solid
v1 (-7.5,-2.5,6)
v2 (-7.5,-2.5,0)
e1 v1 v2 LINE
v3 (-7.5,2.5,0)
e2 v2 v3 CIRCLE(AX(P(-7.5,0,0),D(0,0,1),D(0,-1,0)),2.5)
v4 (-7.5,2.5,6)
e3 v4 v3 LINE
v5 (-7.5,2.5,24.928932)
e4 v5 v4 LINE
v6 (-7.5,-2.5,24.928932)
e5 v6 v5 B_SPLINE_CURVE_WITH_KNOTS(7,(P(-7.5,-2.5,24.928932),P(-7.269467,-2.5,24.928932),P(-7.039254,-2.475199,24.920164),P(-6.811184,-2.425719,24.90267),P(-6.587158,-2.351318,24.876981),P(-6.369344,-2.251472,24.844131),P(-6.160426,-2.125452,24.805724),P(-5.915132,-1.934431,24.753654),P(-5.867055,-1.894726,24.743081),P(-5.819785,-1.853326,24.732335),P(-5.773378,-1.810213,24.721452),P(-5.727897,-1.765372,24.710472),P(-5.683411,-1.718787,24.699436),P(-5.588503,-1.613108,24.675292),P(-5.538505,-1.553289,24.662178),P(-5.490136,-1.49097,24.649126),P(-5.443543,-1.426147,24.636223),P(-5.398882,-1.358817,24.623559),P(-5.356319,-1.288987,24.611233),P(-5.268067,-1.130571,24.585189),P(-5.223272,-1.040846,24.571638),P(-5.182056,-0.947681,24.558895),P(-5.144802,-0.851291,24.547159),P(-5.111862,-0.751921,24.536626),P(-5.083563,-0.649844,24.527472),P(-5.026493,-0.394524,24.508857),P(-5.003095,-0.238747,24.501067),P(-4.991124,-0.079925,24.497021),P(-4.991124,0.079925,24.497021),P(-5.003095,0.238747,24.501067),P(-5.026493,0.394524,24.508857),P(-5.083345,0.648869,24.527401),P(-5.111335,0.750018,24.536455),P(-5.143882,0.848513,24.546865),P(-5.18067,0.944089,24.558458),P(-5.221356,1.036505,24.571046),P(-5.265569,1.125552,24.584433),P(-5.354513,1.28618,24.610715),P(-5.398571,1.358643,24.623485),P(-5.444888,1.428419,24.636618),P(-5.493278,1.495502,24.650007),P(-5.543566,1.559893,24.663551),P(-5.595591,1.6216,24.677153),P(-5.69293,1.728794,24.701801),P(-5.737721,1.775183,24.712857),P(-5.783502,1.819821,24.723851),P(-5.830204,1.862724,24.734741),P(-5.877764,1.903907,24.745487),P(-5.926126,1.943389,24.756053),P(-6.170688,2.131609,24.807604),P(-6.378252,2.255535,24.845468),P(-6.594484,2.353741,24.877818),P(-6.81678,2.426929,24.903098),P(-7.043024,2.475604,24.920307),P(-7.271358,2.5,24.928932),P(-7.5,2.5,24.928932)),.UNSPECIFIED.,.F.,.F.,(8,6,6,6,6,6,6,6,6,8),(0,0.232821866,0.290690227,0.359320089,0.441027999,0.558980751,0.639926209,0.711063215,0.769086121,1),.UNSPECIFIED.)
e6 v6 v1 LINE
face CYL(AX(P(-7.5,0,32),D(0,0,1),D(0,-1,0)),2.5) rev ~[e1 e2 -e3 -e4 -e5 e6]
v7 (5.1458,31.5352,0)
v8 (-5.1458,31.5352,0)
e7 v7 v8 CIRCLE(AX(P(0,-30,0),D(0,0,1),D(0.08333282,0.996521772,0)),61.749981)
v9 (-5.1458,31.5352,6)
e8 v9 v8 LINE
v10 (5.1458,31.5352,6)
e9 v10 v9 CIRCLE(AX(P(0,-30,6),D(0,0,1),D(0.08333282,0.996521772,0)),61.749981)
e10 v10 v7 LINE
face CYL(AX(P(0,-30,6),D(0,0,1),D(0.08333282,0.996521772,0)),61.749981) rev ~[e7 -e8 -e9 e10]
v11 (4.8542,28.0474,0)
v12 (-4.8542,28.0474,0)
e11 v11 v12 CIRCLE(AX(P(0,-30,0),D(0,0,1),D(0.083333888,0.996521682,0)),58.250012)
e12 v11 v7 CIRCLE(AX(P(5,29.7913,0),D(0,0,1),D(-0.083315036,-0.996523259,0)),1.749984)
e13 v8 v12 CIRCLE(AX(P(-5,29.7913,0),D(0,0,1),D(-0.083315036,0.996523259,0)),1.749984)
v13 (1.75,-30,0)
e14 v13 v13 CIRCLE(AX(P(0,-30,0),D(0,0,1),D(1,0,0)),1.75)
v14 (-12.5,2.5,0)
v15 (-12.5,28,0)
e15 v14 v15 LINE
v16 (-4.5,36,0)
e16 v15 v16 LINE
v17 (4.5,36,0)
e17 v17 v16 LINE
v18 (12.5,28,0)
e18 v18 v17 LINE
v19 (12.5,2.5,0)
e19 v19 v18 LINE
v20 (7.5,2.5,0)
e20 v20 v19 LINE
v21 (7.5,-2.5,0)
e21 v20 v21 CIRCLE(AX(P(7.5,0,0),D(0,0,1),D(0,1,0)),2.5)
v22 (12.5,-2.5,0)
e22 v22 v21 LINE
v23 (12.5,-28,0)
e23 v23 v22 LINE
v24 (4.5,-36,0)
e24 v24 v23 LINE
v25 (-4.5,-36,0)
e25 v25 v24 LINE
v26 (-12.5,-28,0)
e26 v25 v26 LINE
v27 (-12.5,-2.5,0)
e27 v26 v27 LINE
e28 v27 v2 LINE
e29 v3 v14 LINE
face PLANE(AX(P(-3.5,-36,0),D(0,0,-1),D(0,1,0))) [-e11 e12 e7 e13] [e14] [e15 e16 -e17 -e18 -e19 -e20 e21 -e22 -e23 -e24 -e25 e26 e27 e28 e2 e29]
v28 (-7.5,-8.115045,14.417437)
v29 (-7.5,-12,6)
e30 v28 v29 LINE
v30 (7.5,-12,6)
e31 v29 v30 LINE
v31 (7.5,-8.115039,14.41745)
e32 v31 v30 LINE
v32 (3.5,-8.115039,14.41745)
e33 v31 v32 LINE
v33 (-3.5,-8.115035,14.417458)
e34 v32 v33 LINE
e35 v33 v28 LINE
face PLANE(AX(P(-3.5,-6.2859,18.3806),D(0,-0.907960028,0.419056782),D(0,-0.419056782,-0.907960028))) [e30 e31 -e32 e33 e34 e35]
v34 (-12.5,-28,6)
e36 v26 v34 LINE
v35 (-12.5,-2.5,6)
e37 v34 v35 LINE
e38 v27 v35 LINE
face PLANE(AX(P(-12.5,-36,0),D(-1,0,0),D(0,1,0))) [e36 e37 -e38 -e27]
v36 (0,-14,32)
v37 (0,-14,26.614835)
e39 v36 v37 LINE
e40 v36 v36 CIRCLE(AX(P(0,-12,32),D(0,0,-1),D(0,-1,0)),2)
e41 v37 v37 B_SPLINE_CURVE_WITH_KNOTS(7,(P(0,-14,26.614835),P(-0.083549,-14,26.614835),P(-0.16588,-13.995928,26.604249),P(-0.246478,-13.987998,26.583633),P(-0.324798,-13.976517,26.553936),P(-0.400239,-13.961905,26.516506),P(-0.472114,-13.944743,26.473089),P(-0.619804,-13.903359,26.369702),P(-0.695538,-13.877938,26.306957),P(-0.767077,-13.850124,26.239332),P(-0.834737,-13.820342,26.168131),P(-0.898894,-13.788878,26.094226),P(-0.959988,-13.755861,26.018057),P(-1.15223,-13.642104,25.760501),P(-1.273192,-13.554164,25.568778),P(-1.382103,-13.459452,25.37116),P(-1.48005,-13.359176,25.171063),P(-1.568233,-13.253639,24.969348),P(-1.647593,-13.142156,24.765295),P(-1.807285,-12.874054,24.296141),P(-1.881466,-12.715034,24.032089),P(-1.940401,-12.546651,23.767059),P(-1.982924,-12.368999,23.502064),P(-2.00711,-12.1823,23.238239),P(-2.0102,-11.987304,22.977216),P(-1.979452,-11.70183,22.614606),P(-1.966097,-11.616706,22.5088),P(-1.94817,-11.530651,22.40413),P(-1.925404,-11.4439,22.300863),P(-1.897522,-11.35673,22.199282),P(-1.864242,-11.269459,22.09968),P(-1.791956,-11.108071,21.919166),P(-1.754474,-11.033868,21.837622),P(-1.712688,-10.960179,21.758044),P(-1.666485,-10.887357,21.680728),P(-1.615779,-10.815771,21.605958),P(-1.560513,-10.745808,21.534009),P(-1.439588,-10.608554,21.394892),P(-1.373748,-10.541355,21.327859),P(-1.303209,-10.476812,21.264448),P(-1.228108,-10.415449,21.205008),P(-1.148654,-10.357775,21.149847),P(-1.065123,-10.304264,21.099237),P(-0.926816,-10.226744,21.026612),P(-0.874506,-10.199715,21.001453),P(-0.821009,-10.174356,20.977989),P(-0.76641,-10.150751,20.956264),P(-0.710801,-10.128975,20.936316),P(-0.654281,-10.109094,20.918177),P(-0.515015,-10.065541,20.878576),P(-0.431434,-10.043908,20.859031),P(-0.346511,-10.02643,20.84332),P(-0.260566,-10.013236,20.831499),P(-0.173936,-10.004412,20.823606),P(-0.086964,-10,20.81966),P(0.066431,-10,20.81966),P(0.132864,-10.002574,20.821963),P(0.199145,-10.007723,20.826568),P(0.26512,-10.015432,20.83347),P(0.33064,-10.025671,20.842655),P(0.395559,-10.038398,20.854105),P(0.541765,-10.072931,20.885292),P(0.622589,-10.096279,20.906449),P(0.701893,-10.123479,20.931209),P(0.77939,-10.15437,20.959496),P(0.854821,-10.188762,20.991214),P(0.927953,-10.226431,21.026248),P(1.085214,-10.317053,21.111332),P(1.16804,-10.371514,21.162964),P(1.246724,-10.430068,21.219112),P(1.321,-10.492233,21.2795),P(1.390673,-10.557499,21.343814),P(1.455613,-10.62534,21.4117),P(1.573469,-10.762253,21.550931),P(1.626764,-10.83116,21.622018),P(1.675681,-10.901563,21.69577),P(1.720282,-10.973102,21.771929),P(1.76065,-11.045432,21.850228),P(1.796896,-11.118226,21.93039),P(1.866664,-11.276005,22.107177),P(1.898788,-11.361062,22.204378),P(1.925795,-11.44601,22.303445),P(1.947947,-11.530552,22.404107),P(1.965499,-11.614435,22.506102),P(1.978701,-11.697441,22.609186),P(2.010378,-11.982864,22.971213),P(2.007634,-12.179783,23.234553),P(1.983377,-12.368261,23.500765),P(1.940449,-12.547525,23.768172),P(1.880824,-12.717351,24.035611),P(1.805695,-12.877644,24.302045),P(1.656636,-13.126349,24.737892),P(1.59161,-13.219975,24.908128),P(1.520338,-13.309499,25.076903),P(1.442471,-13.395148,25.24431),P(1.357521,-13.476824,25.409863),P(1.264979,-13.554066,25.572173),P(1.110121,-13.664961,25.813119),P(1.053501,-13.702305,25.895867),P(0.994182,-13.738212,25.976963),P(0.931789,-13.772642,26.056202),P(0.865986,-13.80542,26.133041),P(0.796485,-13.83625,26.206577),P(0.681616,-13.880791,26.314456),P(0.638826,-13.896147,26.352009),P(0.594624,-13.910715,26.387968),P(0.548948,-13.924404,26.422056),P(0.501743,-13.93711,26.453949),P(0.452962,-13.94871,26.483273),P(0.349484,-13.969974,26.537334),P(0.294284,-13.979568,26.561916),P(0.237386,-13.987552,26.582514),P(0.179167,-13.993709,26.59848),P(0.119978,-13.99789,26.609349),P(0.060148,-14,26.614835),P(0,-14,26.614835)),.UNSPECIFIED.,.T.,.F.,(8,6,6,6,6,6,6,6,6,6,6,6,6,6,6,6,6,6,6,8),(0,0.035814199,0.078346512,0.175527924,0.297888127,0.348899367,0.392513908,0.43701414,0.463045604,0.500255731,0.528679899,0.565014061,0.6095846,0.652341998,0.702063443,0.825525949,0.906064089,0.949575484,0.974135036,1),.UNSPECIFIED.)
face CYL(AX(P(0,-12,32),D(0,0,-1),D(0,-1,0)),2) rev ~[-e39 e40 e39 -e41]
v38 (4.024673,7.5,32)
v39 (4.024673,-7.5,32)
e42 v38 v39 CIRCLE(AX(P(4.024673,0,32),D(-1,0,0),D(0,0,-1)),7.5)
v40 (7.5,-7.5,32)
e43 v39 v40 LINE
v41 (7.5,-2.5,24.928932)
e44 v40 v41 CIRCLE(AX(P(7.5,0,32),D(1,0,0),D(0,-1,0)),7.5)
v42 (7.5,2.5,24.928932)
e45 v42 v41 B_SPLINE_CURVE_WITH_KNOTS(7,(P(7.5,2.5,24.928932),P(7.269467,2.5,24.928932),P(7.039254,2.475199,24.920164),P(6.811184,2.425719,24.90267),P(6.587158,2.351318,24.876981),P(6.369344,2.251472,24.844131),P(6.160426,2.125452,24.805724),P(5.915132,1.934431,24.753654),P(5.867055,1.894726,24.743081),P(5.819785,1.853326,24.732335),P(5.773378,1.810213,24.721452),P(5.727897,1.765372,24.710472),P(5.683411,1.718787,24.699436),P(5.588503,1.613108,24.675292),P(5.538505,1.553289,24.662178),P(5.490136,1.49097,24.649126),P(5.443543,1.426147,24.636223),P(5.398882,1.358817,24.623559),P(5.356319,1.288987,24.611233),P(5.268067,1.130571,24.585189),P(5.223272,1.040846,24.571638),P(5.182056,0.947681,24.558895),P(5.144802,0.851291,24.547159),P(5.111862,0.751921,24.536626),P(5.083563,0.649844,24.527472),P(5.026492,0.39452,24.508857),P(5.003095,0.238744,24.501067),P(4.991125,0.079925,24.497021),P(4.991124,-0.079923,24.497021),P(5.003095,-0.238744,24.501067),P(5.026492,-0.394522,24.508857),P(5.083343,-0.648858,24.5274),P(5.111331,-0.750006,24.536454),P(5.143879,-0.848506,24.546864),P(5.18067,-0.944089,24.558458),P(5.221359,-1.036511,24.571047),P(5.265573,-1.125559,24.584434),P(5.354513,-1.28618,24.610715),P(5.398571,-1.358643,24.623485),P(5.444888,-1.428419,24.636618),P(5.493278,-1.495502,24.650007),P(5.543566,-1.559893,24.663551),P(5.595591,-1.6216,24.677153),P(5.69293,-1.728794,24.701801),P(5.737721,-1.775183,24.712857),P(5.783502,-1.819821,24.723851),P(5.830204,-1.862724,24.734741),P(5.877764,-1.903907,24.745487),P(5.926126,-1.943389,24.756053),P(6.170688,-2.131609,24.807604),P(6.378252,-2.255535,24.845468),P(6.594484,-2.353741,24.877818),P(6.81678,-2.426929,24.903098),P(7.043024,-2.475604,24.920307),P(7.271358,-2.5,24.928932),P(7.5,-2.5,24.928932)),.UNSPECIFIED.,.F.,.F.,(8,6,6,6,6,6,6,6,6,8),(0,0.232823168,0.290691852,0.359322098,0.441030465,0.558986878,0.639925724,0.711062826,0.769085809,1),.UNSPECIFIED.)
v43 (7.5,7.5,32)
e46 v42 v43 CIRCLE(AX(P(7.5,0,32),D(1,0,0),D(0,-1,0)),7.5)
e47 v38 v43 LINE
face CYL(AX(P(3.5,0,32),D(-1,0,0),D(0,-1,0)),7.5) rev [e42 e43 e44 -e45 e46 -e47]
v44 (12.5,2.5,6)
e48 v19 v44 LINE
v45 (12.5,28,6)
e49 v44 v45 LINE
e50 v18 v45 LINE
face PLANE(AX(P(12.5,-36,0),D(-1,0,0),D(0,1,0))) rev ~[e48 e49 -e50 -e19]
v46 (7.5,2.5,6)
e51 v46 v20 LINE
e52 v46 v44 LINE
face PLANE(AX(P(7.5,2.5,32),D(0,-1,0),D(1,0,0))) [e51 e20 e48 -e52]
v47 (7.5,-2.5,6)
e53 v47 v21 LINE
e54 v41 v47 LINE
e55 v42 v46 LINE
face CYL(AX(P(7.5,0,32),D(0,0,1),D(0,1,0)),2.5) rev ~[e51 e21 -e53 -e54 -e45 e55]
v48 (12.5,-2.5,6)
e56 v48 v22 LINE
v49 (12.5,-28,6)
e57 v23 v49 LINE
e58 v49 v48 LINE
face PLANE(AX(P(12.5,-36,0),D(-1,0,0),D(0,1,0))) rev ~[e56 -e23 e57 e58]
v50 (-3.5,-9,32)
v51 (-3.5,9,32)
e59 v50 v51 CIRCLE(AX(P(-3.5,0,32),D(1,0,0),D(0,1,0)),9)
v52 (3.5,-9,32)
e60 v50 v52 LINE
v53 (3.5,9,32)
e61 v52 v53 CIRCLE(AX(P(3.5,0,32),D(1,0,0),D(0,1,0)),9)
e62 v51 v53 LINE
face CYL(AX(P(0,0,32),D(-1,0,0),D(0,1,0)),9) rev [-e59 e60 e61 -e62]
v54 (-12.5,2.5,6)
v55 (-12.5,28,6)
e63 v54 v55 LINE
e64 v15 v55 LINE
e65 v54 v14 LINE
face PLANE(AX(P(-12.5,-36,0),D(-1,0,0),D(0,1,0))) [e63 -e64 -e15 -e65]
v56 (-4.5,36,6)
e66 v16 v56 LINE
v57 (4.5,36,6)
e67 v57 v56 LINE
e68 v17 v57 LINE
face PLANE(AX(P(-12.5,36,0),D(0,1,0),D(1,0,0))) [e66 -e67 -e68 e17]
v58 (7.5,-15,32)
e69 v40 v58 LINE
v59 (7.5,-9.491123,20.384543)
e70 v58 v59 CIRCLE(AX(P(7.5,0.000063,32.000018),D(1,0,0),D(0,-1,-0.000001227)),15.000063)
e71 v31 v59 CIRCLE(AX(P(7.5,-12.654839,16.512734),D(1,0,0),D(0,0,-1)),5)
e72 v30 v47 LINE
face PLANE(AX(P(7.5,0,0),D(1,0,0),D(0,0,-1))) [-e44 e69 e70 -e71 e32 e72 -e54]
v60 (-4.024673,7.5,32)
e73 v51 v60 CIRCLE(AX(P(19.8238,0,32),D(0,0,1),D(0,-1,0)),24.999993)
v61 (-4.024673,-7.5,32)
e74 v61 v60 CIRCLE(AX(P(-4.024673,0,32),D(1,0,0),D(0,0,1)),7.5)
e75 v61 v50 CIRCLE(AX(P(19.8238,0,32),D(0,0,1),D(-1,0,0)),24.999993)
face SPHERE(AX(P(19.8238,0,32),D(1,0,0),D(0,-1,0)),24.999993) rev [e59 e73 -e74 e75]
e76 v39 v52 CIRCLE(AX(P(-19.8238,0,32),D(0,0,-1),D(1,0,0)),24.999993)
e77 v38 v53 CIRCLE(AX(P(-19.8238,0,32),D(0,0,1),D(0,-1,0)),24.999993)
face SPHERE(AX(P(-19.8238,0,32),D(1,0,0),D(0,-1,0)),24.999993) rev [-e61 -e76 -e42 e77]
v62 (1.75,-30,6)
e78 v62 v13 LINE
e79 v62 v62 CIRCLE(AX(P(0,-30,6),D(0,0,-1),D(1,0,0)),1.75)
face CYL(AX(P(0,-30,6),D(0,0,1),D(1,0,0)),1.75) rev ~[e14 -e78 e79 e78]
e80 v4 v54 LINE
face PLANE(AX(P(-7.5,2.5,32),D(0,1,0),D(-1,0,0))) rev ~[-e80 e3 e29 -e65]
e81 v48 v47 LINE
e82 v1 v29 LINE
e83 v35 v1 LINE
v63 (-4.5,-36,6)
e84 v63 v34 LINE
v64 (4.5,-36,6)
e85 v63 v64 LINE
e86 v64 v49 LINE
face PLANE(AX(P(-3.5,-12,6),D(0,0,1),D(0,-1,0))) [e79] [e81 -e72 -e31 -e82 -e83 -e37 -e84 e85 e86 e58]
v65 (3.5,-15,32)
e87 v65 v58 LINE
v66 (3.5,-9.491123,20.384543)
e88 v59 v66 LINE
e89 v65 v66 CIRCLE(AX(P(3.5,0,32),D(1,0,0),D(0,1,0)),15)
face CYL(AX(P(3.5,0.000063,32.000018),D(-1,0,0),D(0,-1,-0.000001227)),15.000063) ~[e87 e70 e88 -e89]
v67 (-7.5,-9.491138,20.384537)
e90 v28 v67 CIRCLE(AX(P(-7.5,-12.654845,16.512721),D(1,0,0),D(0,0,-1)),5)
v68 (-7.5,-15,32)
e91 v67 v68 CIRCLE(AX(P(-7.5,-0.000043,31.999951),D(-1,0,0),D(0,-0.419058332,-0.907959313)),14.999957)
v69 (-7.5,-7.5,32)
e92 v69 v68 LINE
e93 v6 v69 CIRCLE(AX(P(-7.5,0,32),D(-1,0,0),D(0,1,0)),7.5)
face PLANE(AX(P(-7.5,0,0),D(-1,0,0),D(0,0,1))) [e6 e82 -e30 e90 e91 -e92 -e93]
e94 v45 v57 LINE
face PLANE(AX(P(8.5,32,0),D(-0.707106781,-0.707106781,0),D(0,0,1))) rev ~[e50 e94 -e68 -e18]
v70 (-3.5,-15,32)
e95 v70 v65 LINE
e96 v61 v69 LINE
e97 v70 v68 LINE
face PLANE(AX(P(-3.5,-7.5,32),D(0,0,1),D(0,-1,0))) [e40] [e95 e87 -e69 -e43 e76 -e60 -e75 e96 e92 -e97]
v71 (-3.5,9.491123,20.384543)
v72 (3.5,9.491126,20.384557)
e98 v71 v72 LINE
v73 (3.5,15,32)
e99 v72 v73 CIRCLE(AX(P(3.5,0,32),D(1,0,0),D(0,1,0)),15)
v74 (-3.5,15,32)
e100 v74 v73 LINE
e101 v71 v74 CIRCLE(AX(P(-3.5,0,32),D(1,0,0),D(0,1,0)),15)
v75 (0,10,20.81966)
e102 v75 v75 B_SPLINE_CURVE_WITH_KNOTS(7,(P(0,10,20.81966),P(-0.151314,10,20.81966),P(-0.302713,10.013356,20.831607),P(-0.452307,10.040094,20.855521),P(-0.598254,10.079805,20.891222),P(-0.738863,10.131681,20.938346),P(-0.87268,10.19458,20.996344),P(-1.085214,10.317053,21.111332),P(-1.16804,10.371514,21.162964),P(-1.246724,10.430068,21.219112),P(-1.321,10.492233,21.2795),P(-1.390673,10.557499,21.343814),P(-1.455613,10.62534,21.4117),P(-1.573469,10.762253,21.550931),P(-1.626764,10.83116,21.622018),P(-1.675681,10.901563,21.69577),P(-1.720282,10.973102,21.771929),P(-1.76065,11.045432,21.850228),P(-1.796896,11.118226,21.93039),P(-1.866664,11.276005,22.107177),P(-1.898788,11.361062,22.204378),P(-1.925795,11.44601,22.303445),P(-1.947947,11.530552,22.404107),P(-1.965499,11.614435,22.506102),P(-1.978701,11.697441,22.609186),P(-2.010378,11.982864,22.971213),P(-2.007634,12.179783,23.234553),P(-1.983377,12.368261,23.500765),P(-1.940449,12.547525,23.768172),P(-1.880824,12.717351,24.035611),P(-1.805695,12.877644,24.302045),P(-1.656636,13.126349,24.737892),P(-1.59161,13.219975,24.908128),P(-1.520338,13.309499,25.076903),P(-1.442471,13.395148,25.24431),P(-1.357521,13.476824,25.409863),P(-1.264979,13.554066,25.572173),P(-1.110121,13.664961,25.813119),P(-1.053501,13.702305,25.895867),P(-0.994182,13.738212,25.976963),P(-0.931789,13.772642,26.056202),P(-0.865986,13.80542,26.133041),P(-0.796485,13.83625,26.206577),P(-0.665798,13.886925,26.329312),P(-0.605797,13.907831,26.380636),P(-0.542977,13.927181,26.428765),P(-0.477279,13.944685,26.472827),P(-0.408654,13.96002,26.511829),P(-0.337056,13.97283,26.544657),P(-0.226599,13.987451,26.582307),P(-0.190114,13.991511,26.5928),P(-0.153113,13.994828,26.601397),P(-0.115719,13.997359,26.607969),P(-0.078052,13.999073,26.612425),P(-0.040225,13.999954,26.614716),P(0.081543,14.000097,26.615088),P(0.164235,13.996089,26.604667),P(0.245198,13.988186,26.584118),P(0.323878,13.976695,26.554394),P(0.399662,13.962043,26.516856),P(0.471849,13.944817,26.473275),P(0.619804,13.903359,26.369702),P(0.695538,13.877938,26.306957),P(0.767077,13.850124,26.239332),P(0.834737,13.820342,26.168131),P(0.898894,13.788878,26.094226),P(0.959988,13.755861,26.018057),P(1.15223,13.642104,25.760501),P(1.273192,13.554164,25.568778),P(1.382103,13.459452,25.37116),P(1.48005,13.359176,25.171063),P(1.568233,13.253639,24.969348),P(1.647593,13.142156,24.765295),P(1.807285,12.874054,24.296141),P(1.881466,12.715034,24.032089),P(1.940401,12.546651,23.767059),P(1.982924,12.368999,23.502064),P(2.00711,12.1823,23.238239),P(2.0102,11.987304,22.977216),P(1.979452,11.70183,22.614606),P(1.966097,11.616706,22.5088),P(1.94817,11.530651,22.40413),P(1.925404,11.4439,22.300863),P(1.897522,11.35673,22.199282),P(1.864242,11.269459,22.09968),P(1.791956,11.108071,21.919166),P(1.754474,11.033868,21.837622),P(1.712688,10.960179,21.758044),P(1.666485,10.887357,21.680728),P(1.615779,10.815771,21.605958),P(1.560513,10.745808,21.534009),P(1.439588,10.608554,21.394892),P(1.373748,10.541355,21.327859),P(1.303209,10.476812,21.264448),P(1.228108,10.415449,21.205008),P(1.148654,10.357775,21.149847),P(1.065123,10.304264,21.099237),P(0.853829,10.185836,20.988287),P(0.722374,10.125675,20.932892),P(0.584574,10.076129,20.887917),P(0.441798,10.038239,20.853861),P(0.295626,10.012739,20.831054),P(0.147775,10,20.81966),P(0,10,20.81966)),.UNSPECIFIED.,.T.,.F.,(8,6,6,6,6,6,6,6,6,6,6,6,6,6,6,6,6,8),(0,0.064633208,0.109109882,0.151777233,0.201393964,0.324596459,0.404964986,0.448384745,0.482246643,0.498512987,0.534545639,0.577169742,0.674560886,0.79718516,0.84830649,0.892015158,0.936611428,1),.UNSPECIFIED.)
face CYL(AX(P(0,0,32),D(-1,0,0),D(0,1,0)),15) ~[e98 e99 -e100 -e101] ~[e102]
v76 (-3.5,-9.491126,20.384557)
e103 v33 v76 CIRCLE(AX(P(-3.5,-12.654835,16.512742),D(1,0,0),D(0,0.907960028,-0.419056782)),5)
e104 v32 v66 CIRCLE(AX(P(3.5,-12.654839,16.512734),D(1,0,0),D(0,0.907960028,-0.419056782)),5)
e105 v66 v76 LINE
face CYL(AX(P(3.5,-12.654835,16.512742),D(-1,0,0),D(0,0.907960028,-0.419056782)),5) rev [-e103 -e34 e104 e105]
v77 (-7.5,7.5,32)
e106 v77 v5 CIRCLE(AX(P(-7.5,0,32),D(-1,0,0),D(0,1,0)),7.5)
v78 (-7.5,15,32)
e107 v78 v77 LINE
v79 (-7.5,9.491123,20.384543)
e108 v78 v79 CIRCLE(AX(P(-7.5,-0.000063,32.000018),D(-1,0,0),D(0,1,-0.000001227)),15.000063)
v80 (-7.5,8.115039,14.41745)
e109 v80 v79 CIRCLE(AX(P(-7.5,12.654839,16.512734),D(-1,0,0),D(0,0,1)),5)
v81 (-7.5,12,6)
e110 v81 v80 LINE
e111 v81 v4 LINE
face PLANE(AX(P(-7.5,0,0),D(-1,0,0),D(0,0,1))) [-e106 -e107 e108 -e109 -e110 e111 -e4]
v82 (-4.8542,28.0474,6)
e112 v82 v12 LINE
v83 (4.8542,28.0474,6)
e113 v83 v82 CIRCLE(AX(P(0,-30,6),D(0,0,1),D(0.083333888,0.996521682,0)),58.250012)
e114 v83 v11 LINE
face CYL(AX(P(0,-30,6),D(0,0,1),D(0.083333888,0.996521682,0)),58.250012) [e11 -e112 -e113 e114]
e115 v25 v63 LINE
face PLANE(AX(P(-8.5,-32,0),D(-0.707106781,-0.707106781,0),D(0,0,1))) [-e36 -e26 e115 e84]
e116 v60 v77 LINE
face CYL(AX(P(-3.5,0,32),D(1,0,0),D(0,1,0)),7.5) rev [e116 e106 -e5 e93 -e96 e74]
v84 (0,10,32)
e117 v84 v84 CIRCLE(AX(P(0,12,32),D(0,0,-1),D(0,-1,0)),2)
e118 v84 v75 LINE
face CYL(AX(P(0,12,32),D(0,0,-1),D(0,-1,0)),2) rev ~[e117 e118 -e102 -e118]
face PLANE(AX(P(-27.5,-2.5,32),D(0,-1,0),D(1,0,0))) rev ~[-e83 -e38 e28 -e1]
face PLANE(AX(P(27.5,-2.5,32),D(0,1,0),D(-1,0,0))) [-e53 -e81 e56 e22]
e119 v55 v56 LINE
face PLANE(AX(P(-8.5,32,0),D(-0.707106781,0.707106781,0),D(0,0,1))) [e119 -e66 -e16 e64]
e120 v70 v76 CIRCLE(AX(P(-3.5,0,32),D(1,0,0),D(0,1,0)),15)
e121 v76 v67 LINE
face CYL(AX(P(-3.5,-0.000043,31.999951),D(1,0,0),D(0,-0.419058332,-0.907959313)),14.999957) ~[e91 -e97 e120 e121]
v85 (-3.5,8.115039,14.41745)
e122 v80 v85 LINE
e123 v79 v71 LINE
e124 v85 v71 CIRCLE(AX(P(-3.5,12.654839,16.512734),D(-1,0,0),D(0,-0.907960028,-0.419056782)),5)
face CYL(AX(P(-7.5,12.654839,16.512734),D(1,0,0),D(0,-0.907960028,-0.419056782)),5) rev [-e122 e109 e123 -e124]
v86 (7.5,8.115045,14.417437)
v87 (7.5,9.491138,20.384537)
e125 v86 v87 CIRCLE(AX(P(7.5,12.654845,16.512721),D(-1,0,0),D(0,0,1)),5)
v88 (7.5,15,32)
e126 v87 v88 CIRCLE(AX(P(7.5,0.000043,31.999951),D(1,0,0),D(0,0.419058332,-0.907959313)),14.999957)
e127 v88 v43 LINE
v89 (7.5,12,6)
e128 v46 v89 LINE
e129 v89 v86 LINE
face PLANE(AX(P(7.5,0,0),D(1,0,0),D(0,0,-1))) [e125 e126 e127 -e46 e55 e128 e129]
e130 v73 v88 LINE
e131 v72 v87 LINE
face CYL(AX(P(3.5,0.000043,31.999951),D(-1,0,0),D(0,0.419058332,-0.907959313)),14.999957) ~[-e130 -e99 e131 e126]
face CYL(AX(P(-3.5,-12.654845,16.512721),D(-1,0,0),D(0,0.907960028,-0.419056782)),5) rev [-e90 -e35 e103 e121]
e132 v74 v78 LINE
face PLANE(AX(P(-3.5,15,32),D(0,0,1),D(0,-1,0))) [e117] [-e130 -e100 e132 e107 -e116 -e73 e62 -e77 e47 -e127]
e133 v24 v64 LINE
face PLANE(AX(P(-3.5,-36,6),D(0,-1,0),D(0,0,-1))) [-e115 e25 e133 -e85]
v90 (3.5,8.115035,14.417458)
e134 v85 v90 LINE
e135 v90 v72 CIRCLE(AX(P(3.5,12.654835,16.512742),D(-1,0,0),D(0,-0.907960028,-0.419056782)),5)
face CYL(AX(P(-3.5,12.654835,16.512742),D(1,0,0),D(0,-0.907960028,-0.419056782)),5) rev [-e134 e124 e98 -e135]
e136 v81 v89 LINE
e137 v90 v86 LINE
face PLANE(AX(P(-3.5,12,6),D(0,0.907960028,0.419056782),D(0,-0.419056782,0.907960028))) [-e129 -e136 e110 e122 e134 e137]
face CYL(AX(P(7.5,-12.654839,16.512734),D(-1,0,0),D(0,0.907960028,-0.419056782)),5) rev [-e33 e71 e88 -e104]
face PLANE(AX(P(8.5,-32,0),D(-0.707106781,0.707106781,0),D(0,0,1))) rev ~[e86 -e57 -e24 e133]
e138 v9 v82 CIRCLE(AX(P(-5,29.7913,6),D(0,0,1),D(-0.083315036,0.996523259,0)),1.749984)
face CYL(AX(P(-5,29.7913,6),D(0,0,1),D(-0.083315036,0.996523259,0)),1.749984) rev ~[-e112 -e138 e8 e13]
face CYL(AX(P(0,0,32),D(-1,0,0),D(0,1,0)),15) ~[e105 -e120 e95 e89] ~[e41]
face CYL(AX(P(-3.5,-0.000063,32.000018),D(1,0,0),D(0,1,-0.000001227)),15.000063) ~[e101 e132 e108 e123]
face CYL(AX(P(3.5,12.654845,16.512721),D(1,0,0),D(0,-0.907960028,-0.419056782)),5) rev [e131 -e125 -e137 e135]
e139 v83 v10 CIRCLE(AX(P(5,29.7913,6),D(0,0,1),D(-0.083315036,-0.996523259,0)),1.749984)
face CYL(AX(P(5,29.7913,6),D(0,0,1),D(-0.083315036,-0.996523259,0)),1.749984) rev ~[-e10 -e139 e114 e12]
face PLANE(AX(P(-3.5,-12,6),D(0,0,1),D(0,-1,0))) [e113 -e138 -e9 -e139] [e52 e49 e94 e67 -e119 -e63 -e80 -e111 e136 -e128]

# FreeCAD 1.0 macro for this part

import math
import FreeCAD as App
import Part
import Sketcher
from FreeCAD import Vector
Q = App.Units.Quantity


def edges_at(feature, points):
    """Names of the edges that pass closest to the given points."""
    edges = feature.Shape.Edges
    near = lambda p: min(range(len(edges)), key=lambda i: edges[i].distToShape(Part.Vertex(*p))[0])
    return sorted({f"Edge{near(p) + 1}" for p in points})

doc = App.newDocument("Part")
params = doc.addObject("Spreadsheet::Sheet", "Params")
for row, (alias, value) in enumerate([
    ("sketch1_radius", "9 mm"),
    ("sketch1_width", "72 mm"),
    ("sketch1_width2", "6 mm"),
    ("pad1_length", "7 mm"),
    ("sketch2_radius", "15 mm"),
    ("sketch2_radius2", "7.5 mm"),
    ("sketch2_width", "24 mm"),
    ("sketch2_width2", "72 mm"),
    ("sketch2_height", "6 mm"),
    ("pad2_length", "4 mm"),
    ("sketch3_radius", "15 mm"),
    ("sketch3_radius2", "7.5 mm"),
    ("sketch3_width", "24 mm"),
    ("sketch3_width2", "72 mm"),
    ("sketch3_height", "6 mm"),
    ("pad3_length", "4 mm"),
    ("sketch4_width", "5 mm"),
    ("sketch4_height", "72 mm"),
    ("pad4_length", "6 mm"),
    ("sketch5_diameter", "4 mm"),
    ("hole_diameter", "4 mm"),
    ("hole_depth", "16 mm"),
    ("sketch6_radius", "25 mm"),
    ("sketch6_height", "9 mm"),
    ("groove_angle", "360 deg"),
    ("fillet_radius", "5 mm"),
    ("sketch7_diameter", "3.5 mm"),
    ("sketch7_radius", "58.25 mm"),
    ("sketch8_radius", "2.5 mm"),
    ("sketch8_width", "20 mm"),
    ("pocket2_length", "32 mm"),
    ("chamfer_size", "8 mm"),
], start=1):
    params.set(f"A{row}", alias)
    params.set(f"B{row}", "=" + value)
    params.setAlias(f"B{row}", alias)

body = doc.addObject("PartDesign::Body", "Body")

# Sketch on YZ plane
sketch1 = body.newObject("Sketcher::SketchObject", "Sketch")
sketch1.AttachmentSupport = (doc.getObject("YZ_Plane"), [""])
sketch1.MapMode = "FlatFace"
sketch1.addGeometry(Part.LineSegment(Vector(-36, 6, 0), Vector(-36, 0, 0)), False)
sketch1.addGeometry(Part.LineSegment(Vector(-36, 0, 0), Vector(36, 0, 0)), False)
sketch1.addGeometry(Part.LineSegment(Vector(36, 0, 0), Vector(36, 6, 0)), False)
sketch1.addGeometry(Part.LineSegment(Vector(36, 6, 0), Vector(12, 6, 0)), False)
sketch1.addGeometry(Part.LineSegment(Vector(12, 6, 0), Vector(6.2859, 18.3806, 0)), False)
sketch1.addGeometry(Part.ArcOfCircle(Part.Circle(Vector(0, 32, 0), Vector(0, 0, 1), 15), math.radians(-65.224779), math.radians(0)), False)
sketch1.addGeometry(Part.LineSegment(Vector(15, 32, 0), Vector(9, 32, 0)), False)
sketch1.addGeometry(Part.ArcOfCircle(Part.Circle(Vector(0, 32, 0), Vector(0, 0, 1), 9), math.radians(180), math.radians(360)), False)
sketch1.addGeometry(Part.LineSegment(Vector(-9, 32, 0), Vector(-15, 32, 0)), False)
sketch1.addGeometry(Part.ArcOfCircle(Part.Circle(Vector(0, 32, 0), Vector(0, 0, 1), 15), math.radians(180), math.radians(245.224779)), False)
sketch1.addGeometry(Part.LineSegment(Vector(-6.2859, 18.3806, 0), Vector(-12, 6, 0)), False)
sketch1.addGeometry(Part.LineSegment(Vector(-12, 6, 0), Vector(-36, 6, 0)), False)
sketch1.addConstraint(Sketcher.Constraint("Coincident", 0, 2, 1, 1))
sketch1.addConstraint(Sketcher.Constraint("Coincident", 1, 2, 2, 1))
sketch1.addConstraint(Sketcher.Constraint("Coincident", 2, 2, 3, 1))
sketch1.addConstraint(Sketcher.Constraint("Coincident", 3, 2, 4, 1))
sketch1.addConstraint(Sketcher.Constraint("Coincident", 4, 2, 5, 1))
sketch1.addConstraint(Sketcher.Constraint("Coincident", 5, 2, 6, 1))
sketch1.addConstraint(Sketcher.Constraint("Coincident", 6, 2, 7, 2))
sketch1.addConstraint(Sketcher.Constraint("Coincident", 7, 1, 8, 1))
sketch1.addConstraint(Sketcher.Constraint("Coincident", 8, 2, 9, 1))
sketch1.addConstraint(Sketcher.Constraint("Coincident", 9, 2, 10, 1))
sketch1.addConstraint(Sketcher.Constraint("Coincident", 10, 2, 11, 1))
sketch1.addConstraint(Sketcher.Constraint("Coincident", 11, 2, 0, 1))
sketch1.addConstraint(Sketcher.Constraint("Vertical", 0))
sketch1.addConstraint(Sketcher.Constraint("Horizontal", 1))
sketch1.addConstraint(Sketcher.Constraint("Vertical", 2))
sketch1.addConstraint(Sketcher.Constraint("Horizontal", 3))
sketch1.addConstraint(Sketcher.Constraint("Horizontal", 6))
sketch1.addConstraint(Sketcher.Constraint("Horizontal", 8))
sketch1.addConstraint(Sketcher.Constraint("Horizontal", 11))
sketch1.addConstraint(Sketcher.Constraint("Coincident", 7, 3, 5, 3))
sketch1.addConstraint(Sketcher.Constraint("Coincident", 9, 3, 5, 3))
sketch1.addConstraint(Sketcher.Constraint("Equal", 5, 9))
sketch1.addConstraint(Sketcher.Constraint("Symmetric", 0, 2, 1, 2, -1, 1))
sketch1.addConstraint(Sketcher.Constraint("Symmetric", 6, 2, 7, 1, -2))
sketch1.addConstraint(Sketcher.Constraint("Symmetric", 3, 2, 10, 2, -2))
sketch1.addConstraint(Sketcher.Constraint("Horizontal", 9, 3, 5, 2))
sketch1.addConstraint(Sketcher.Constraint("Horizontal", 4, 2, 9, 2))
sketch1.addConstraint(Sketcher.Constraint("Equal", 8, 0))
sketch1.addConstraint(Sketcher.Constraint("Radius", 7, Q("9 mm")))
sketch1.addConstraint(Sketcher.Constraint("DistanceX", 1, 1, 1, 2, Q("72 mm")))
sketch1.addConstraint(Sketcher.Constraint("DistanceX", 6, 2, 6, 1, Q("6 mm")))
sketch1.addConstraint(Sketcher.Constraint("DistanceY", -1, 1, 5, 3, Q("32 mm")))
sketch1.addConstraint(Sketcher.Constraint("DistanceX", -1, 1, 3, 2, Q("12 mm")))
sketch1.addConstraint(Sketcher.Constraint("DistanceX", -1, 1, 4, 2, Q("6.286 mm")))
sketch1.setExpression("Constraints[28]", "Params.sketch1_radius")
sketch1.setExpression("Constraints[29]", "Params.sketch1_width")
sketch1.setExpression("Constraints[30]", "Params.sketch1_width2")
pad1 = body.newObject("PartDesign::Pad", "Pad")
pad1.Profile = sketch1
pad1.setExpression("Length", "Params.pad1_length")
pad1.Midplane = True

# Sketch on YZ plane
sketch2 = body.newObject("Sketcher::SketchObject", "Sketch001")
sketch2.AttachmentSupport = (doc.getObject("YZ_Plane"), [""])
sketch2.MapMode = "FlatFace"
sketch2.AttachmentOffset = App.Placement(Vector(0, 0, 3.5), App.Rotation())
sketch2.addGeometry(Part.LineSegment(Vector(36, 0, 0), Vector(36, 6, 0)), False)
sketch2.addGeometry(Part.LineSegment(Vector(36, 6, 0), Vector(12, 6, 0)), False)
sketch2.addGeometry(Part.LineSegment(Vector(12, 6, 0), Vector(6.2859, 18.3806, 0)), False)
sketch2.addGeometry(Part.ArcOfCircle(Part.Circle(Vector(0, 32, 0), Vector(0, 0, 1), 15), math.radians(-65.224779), math.radians(0)), False)
sketch2.addGeometry(Part.LineSegment(Vector(15, 32, 0), Vector(7.5, 32, 0)), False)
sketch2.addGeometry(Part.ArcOfCircle(Part.Circle(Vector(0, 32, 0), Vector(0, 0, 1), 7.5), math.radians(180), math.radians(360)), False)
sketch2.addGeometry(Part.LineSegment(Vector(-7.5, 32, 0), Vector(-15, 32, 0)), False)
sketch2.addGeometry(Part.ArcOfCircle(Part.Circle(Vector(0, 32, 0), Vector(0, 0, 1), 15.00002), math.radians(180), math.radians(245.224779)), False)
sketch2.addGeometry(Part.LineSegment(Vector(-6.2859, 18.3806, 0), Vector(-12, 6, 0)), False)
sketch2.addGeometry(Part.LineSegment(Vector(-12, 6, 0), Vector(-36, 6, 0)), False)
sketch2.addGeometry(Part.LineSegment(Vector(-36, 6, 0), Vector(-36, 0, 0)), False)
sketch2.addGeometry(Part.LineSegment(Vector(-36, 0, 0), Vector(36, 0, 0)), False)
sketch2.addConstraint(Sketcher.Constraint("Coincident", 0, 2, 1, 1))
sketch2.addConstraint(Sketcher.Constraint("Coincident", 1, 2, 2, 1))
sketch2.addConstraint(Sketcher.Constraint("Coincident", 2, 2, 3, 1))
sketch2.addConstraint(Sketcher.Constraint("Coincident", 3, 2, 4, 1))
sketch2.addConstraint(Sketcher.Constraint("Coincident", 4, 2, 5, 2))
sketch2.addConstraint(Sketcher.Constraint("Coincident", 5, 1, 6, 1))
sketch2.addConstraint(Sketcher.Constraint("Coincident", 6, 2, 7, 1))
sketch2.addConstraint(Sketcher.Constraint("Coincident", 7, 2, 8, 1))
sketch2.addConstraint(Sketcher.Constraint("Coincident", 8, 2, 9, 1))
sketch2.addConstraint(Sketcher.Constraint("Coincident", 9, 2, 10, 1))
sketch2.addConstraint(Sketcher.Constraint("Coincident", 10, 2, 11, 1))
sketch2.addConstraint(Sketcher.Constraint("Coincident", 11, 2, 0, 1))
sketch2.addConstraint(Sketcher.Constraint("Vertical", 0))
sketch2.addConstraint(Sketcher.Constraint("Horizontal", 1))
sketch2.addConstraint(Sketcher.Constraint("Horizontal", 4))
sketch2.addConstraint(Sketcher.Constraint("Horizontal", 6))
sketch2.addConstraint(Sketcher.Constraint("Horizontal", 9))
sketch2.addConstraint(Sketcher.Constraint("Vertical", 10))
sketch2.addConstraint(Sketcher.Constraint("Horizontal", 11))
sketch2.addConstraint(Sketcher.Constraint("Coincident", 5, 3, 3, 3))
sketch2.addConstraint(Sketcher.Constraint("Coincident", 7, 3, 3, 3))
sketch2.addConstraint(Sketcher.Constraint("Equal", 3, 7))
sketch2.addConstraint(Sketcher.Constraint("Symmetric", 10, 2, 11, 2, -1, 1))
sketch2.addConstraint(Sketcher.Constraint("Symmetric", 4, 2, 5, 1, -2))
sketch2.addConstraint(Sketcher.Constraint("Symmetric", 1, 2, 8, 2, -2))
sketch2.addConstraint(Sketcher.Constraint("Horizontal", 7, 3, 3, 2))
sketch2.addConstraint(Sketcher.Constraint("Horizontal", 2, 2, 7, 2))
sketch2.addConstraint(Sketcher.Constraint("Radius", 3, Q("15 mm")))
sketch2.addConstraint(Sketcher.Constraint("Radius", 5, Q("7.5 mm")))
sketch2.addConstraint(Sketcher.Constraint("DistanceX", 1, 2, 1, 1, Q("24 mm")))
sketch2.addConstraint(Sketcher.Constraint("DistanceX", 11, 1, 11, 2, Q("72 mm")))
sketch2.addConstraint(Sketcher.Constraint("DistanceY", 0, 1, 0, 2, Q("6 mm")))
sketch2.addConstraint(Sketcher.Constraint("DistanceY", -1, 1, 3, 3, Q("32 mm")))
sketch2.addConstraint(Sketcher.Constraint("DistanceX", -1, 1, 2, 2, Q("6.286 mm")))
sketch2.setExpression("Constraints[27]", "Params.sketch2_radius")
sketch2.setExpression("Constraints[28]", "Params.sketch2_radius2")
sketch2.setExpression("Constraints[29]", "Params.sketch2_width")
sketch2.setExpression("Constraints[30]", "Params.sketch2_width2")
sketch2.setExpression("Constraints[31]", "Params.sketch2_height")
pad2 = body.newObject("PartDesign::Pad", "Pad001")
pad2.Profile = sketch2
pad2.setExpression("Length", "Params.pad2_length")

# Sketch on YZ plane
sketch3 = body.newObject("Sketcher::SketchObject", "Sketch002")
sketch3.AttachmentSupport = (doc.getObject("YZ_Plane"), [""])
sketch3.MapMode = "FlatFace"
sketch3.AttachmentOffset = App.Placement(Vector(0, 0, -3.5), App.Rotation())
sketch3.addGeometry(Part.LineSegment(Vector(-12, 6, 0), Vector(-6.2859, 18.3806, 0)), False)
sketch3.addGeometry(Part.ArcOfCircle(Part.Circle(Vector(0, 32, 0), Vector(0, 0, 1), 15), math.radians(180), math.radians(245.224779)), False)
sketch3.addGeometry(Part.LineSegment(Vector(-15, 32, 0), Vector(-7.5, 32, 0)), False)
sketch3.addGeometry(Part.ArcOfCircle(Part.Circle(Vector(0, 32, 0), Vector(0, 0, 1), 7.5), math.radians(180), math.radians(360)), False)
sketch3.addGeometry(Part.LineSegment(Vector(7.5, 32, 0), Vector(15, 32, 0)), False)
sketch3.addGeometry(Part.ArcOfCircle(Part.Circle(Vector(0, 32, 0), Vector(0, 0, 1), 15.00002), math.radians(-65.224779), math.radians(0)), False)
sketch3.addGeometry(Part.LineSegment(Vector(6.2859, 18.3806, 0), Vector(12, 6, 0)), False)
sketch3.addGeometry(Part.LineSegment(Vector(12, 6, 0), Vector(36, 6, 0)), False)
sketch3.addGeometry(Part.LineSegment(Vector(36, 6, 0), Vector(36, 0, 0)), False)
sketch3.addGeometry(Part.LineSegment(Vector(36, 0, 0), Vector(-36, 0, 0)), False)
sketch3.addGeometry(Part.LineSegment(Vector(-36, 0, 0), Vector(-36, 6, 0)), False)
sketch3.addGeometry(Part.LineSegment(Vector(-36, 6, 0), Vector(-12, 6, 0)), False)
sketch3.addConstraint(Sketcher.Constraint("Coincident", 0, 2, 1, 2))
sketch3.addConstraint(Sketcher.Constraint("Coincident", 1, 1, 2, 1))
sketch3.addConstraint(Sketcher.Constraint("Coincident", 2, 2, 3, 1))
sketch3.addConstraint(Sketcher.Constraint("Coincident", 3, 2, 4, 1))
sketch3.addConstraint(Sketcher.Constraint("Coincident", 4, 2, 5, 2))
sketch3.addConstraint(Sketcher.Constraint("Coincident", 5, 1, 6, 1))
sketch3.addConstraint(Sketcher.Constraint("Coincident", 6, 2, 7, 1))
sketch3.addConstraint(Sketcher.Constraint("Coincident", 7, 2, 8, 1))
sketch3.addConstraint(Sketcher.Constraint("Coincident", 8, 2, 9, 1))
sketch3.addConstraint(Sketcher.Constraint("Coincident", 9, 2, 10, 1))
sketch3.addConstraint(Sketcher.Constraint("Coincident", 10, 2, 11, 1))
sketch3.addConstraint(Sketcher.Constraint("Coincident", 11, 2, 0, 1))
sketch3.addConstraint(Sketcher.Constraint("Horizontal", 2))
sketch3.addConstraint(Sketcher.Constraint("Horizontal", 4))
sketch3.addConstraint(Sketcher.Constraint("Horizontal", 7))
sketch3.addConstraint(Sketcher.Constraint("Vertical", 8))
sketch3.addConstraint(Sketcher.Constraint("Horizontal", 9))
sketch3.addConstraint(Sketcher.Constraint("Vertical", 10))
sketch3.addConstraint(Sketcher.Constraint("Horizontal", 11))
sketch3.addConstraint(Sketcher.Constraint("Coincident", 3, 3, 1, 3))
sketch3.addConstraint(Sketcher.Constraint("Coincident", 5, 3, 1, 3))
sketch3.addConstraint(Sketcher.Constraint("Equal", 1, 5))
sketch3.addConstraint(Sketcher.Constraint("Symmetric", 8, 2, 9, 2, -1, 1))
sketch3.addConstraint(Sketcher.Constraint("Symmetric", 2, 2, 3, 2, -2))
sketch3.addConstraint(Sketcher.Constraint("Symmetric", 6, 2, 11, 2, -2))
sketch3.addConstraint(Sketcher.Constraint("Horizontal", 5, 3, 1, 1))
sketch3.addConstraint(Sketcher.Constraint("Horizontal", 0, 2, 5, 1))
sketch3.addConstraint(Sketcher.Constraint("Radius", 1, Q("15 mm")))
sketch3.addConstraint(Sketcher.Constraint("Radius", 3, Q("7.5 mm")))
sketch3.addConstraint(Sketcher.Constraint("DistanceX", 7, 1, 7, 2, Q("24 mm")))
sketch3.addConstraint(Sketcher.Constraint("DistanceX", 9, 2, 9, 1, Q("72 mm")))
sketch3.addConstraint(Sketcher.Constraint("DistanceY", 8, 2, 8, 1, Q("6 mm")))
sketch3.addConstraint(Sketcher.Constraint("DistanceY", -1, 1, 1, 3, Q("32 mm")))
sketch3.addConstraint(Sketcher.Constraint("DistanceX", 0, 2, -1, 1, Q("6.286 mm")))
sketch3.setExpression("Constraints[27]", "Params.sketch3_radius")
sketch3.setExpression("Constraints[28]", "Params.sketch3_radius2")
sketch3.setExpression("Constraints[29]", "Params.sketch3_width")
sketch3.setExpression("Constraints[30]", "Params.sketch3_width2")
sketch3.setExpression("Constraints[31]", "Params.sketch3_height")
pad3 = body.newObject("PartDesign::Pad", "Pad002")
pad3.Profile = sketch3
pad3.setExpression("Length", "Params.pad3_length")
pad3.Reversed = True

# Sketch on XY plane
sketch4 = body.newObject("Sketcher::SketchObject", "Sketch003")
sketch4.AttachmentSupport = (doc.getObject("XY_Plane"), [""])
sketch4.MapMode = "FlatFace"
sketch4.addGeometry(Part.LineSegment(Vector(-12.5, 36, 0), Vector(-7.5, 36, 0)), False)
sketch4.addGeometry(Part.LineSegment(Vector(-7.5, 36, 0), Vector(-7.5, -36, 0)), False)
sketch4.addGeometry(Part.LineSegment(Vector(-7.5, -36, 0), Vector(-12.5, -36, 0)), False)
sketch4.addGeometry(Part.LineSegment(Vector(-12.5, -36, 0), Vector(-12.5, 36, 0)), False)
sketch4.addGeometry(Part.LineSegment(Vector(12.5, -36, 0), Vector(7.5, -36, 0)), False)
sketch4.addGeometry(Part.LineSegment(Vector(7.5, -36, 0), Vector(7.5, 36, 0)), False)
sketch4.addGeometry(Part.LineSegment(Vector(7.5, 36, 0), Vector(12.5, 36, 0)), False)
sketch4.addGeometry(Part.LineSegment(Vector(12.5, 36, 0), Vector(12.5, -36, 0)), False)
sketch4.addConstraint(Sketcher.Constraint("Coincident", 0, 2, 1, 1))
sketch4.addConstraint(Sketcher.Constraint("Coincident", 1, 2, 2, 1))
sketch4.addConstraint(Sketcher.Constraint("Coincident", 2, 2, 3, 1))
sketch4.addConstraint(Sketcher.Constraint("Coincident", 3, 2, 0, 1))
sketch4.addConstraint(Sketcher.Constraint("Coincident", 4, 2, 5, 1))
sketch4.addConstraint(Sketcher.Constraint("Coincident", 5, 2, 6, 1))
sketch4.addConstraint(Sketcher.Constraint("Coincident", 6, 2, 7, 1))
sketch4.addConstraint(Sketcher.Constraint("Coincident", 7, 2, 4, 1))
sketch4.addConstraint(Sketcher.Constraint("Horizontal", 0))
sketch4.addConstraint(Sketcher.Constraint("Vertical", 1))
sketch4.addConstraint(Sketcher.Constraint("Horizontal", 2))
sketch4.addConstraint(Sketcher.Constraint("Vertical", 3))
sketch4.addConstraint(Sketcher.Constraint("Horizontal", 4))
sketch4.addConstraint(Sketcher.Constraint("Vertical", 5))
sketch4.addConstraint(Sketcher.Constraint("Horizontal", 6))
sketch4.addConstraint(Sketcher.Constraint("Vertical", 7))
sketch4.addConstraint(Sketcher.Constraint("Symmetric", 0, 2, 4, 2, -1, 1))
sketch4.addConstraint(Sketcher.Constraint("Symmetric", 2, 2, 6, 2, -1, 1))
sketch4.addConstraint(Sketcher.Constraint("Horizontal", 2, 2, 4, 2))
sketch4.addConstraint(Sketcher.Constraint("DistanceX", 3, 2, 6, 2, Q("25 mm")))
sketch4.addConstraint(Sketcher.Constraint("DistanceX", 0, 1, 0, 2, Q("5 mm")))
sketch4.addConstraint(Sketcher.Constraint("DistanceY", 1, 2, 1, 1, Q("72 mm")))
sketch4.setExpression("Constraints[20]", "Params.sketch4_width")
sketch4.setExpression("Constraints[21]", "Params.sketch4_height")
pad4 = body.newObject("PartDesign::Pad", "Pad003")
pad4.Profile = sketch4
pad4.setExpression("Length", "Params.pad4_length")

# Sketch on XY plane
sketch5 = body.newObject("Sketcher::SketchObject", "Sketch004")
sketch5.AttachmentSupport = (doc.getObject("XY_Plane"), [""])
sketch5.MapMode = "FlatFace"
sketch5.AttachmentOffset = App.Placement(Vector(0, 0, 32), App.Rotation())
sketch5.addGeometry(Part.Circle(Vector(0, -12, 0), Vector(0, 0, 1), 2), False)
sketch5.addGeometry(Part.Circle(Vector(0, 12, 0), Vector(0, 0, 1), 2), False)
sketch5.addConstraint(Sketcher.Constraint("Equal", 0, 1))
sketch5.addConstraint(Sketcher.Constraint("Symmetric", 0, 3, 1, 3, -1, 1))
sketch5.addConstraint(Sketcher.Constraint("PointOnObject", 0, 3, -2))
sketch5.addConstraint(Sketcher.Constraint("Diameter", 0, Q("4 mm")))
sketch5.addConstraint(Sketcher.Constraint("DistanceY", 0, 3, -1, 1, Q("12 mm")))
sketch5.setExpression("Constraints[3]", "Params.sketch5_diameter")
doc.recompute()
hole = body.newObject("PartDesign::Hole", "Hole")
hole.Profile = sketch5
hole.ThreadType = "None"
hole.setExpression("Diameter", "Params.hole_diameter")
hole.DepthType = "Dimension"
hole.setExpression("Depth", "Params.hole_depth")
hole.DrillPoint = "Flat"

# Sketch on XY plane
sketch6 = body.newObject("Sketcher::SketchObject", "Sketch005")
sketch6.AttachmentSupport = (doc.getObject("XY_Plane"), [""])
sketch6.MapMode = "FlatFace"
sketch6.AttachmentOffset = App.Placement(Vector(0, 0, 32), App.Rotation())
sketch6.addGeometry(Part.ArcOfCircle(Part.Circle(Vector(19.8238, 0, 0), Vector(0, 0, 1), 24.999993), math.radians(180), math.radians(201.100202)), False)
sketch6.addGeometry(Part.LineSegment(Vector(-3.5, -9, 0), Vector(-3.5, 0, 0)), False)
sketch6.addGeometry(Part.LineSegment(Vector(-3.5, 0, 0), Vector(-5.176193, 0, 0)), False)
sketch6.addGeometry(Part.ArcOfCircle(Part.Circle(Vector(-19.8238, 0, 0), Vector(0, 0, 1), 24.999993), math.radians(-21.100202), math.radians(0)), False)
sketch6.addGeometry(Part.LineSegment(Vector(5.176193, 0, 0), Vector(3.5, 0, 0)), False)
sketch6.addGeometry(Part.LineSegment(Vector(3.5, 0, 0), Vector(3.5, -9, 0)), False)
sketch6.addConstraint(Sketcher.Constraint("Coincident", 0, 2, 1, 1))
sketch6.addConstraint(Sketcher.Constraint("Coincident", 1, 2, 2, 1))
sketch6.addConstraint(Sketcher.Constraint("Coincident", 2, 2, 0, 1))
sketch6.addConstraint(Sketcher.Constraint("Coincident", 3, 2, 4, 1))
sketch6.addConstraint(Sketcher.Constraint("Coincident", 4, 2, 5, 1))
sketch6.addConstraint(Sketcher.Constraint("Coincident", 5, 2, 3, 1))
sketch6.addConstraint(Sketcher.Constraint("Vertical", 1))
sketch6.addConstraint(Sketcher.Constraint("Horizontal", 2))
sketch6.addConstraint(Sketcher.Constraint("Horizontal", 4))
sketch6.addConstraint(Sketcher.Constraint("Vertical", 5))
sketch6.addConstraint(Sketcher.Constraint("Equal", 0, 3))
sketch6.addConstraint(Sketcher.Constraint("Symmetric", 0, 3, 3, 3, -1, 1))
sketch6.addConstraint(Sketcher.Constraint("Symmetric", 1, 2, 4, 2, -1, 1))
sketch6.addConstraint(Sketcher.Constraint("PointOnObject", 0, 3, -1))
sketch6.addConstraint(Sketcher.Constraint("PointOnObject", 1, 2, -1))
sketch6.addConstraint(Sketcher.Constraint("Radius", 0, Q("25 mm")))
sketch6.addConstraint(Sketcher.Constraint("DistanceY", 1, 1, 1, 2, Q("9 mm")))
sketch6.addConstraint(Sketcher.Constraint("DistanceX", 1, 2, 4, 2, Q("7 mm")))
sketch6.setExpression("Constraints[15]", "Params.sketch6_radius")
sketch6.setExpression("Constraints[16]", "Params.sketch6_height")
groove = body.newObject("PartDesign::Groove", "Groove")
groove.Profile = sketch6
groove.ReferenceAxis = (sketch6, ["H_Axis"])
groove.setExpression("Angle", "Params.groove_angle")
doc.recompute()

fillet = body.newObject("PartDesign::Fillet", "Fillet")
fillet.Base = (groove, edges_at(groove, [(0, 6.286, 18.381), (0, -6.286, 18.381)]))
fillet.setExpression("Radius", "Params.fillet_radius")

# Sketch on XY plane
sketch7 = body.newObject("Sketcher::SketchObject", "Sketch006")
sketch7.AttachmentSupport = (doc.getObject("XY_Plane"), [""])
sketch7.MapMode = "FlatFace"
sketch7.AttachmentOffset = App.Placement(Vector(0, 0, 6), App.Rotation())
sketch7.addGeometry(Part.ArcOfCircle(Part.Circle(Vector(0, -30, 0), Vector(0, 0, 1), 58.250012), math.radians(85.219776), math.radians(94.780224)), False)
sketch7.addGeometry(Part.ArcOfCircle(Part.Circle(Vector(5, 29.7913, 0), Vector(0, 0, 1), 1.749984), math.radians(-94.77914), math.radians(85.22086)), False)
sketch7.addGeometry(Part.ArcOfCircle(Part.Circle(Vector(0, -30, 0), Vector(0, 0, 1), 61.749981), math.radians(85.219838), math.radians(94.780162)), False)
sketch7.addGeometry(Part.ArcOfCircle(Part.Circle(Vector(-5, 29.7913, 0), Vector(0, 0, 1), 1.749984), math.radians(94.77914), math.radians(274.77914)), False)
sketch7.addGeometry(Part.Circle(Vector(0, -30, 0), Vector(0, 0, 1), 1.75), False)
sketch7.addConstraint(Sketcher.Constraint("Tangent", 0, 1, 1, 1))
sketch7.addConstraint(Sketcher.Constraint("Tangent", 1, 2, 2, 1))
sketch7.addConstraint(Sketcher.Constraint("Tangent", 2, 2, 3, 1))
sketch7.addConstraint(Sketcher.Constraint("Tangent", 3, 2, 0, 2))
sketch7.addConstraint(Sketcher.Constraint("Coincident", 2, 3, 0, 3))
sketch7.addConstraint(Sketcher.Constraint("Coincident", 4, 3, 0, 3))
sketch7.addConstraint(Sketcher.Constraint("Equal", 3, 4))
sketch7.addConstraint(Sketcher.Constraint("Symmetric", 1, 3, 3, 3, -2))
sketch7.addConstraint(Sketcher.Constraint("Diameter", 4, Q("3.5 mm")))
sketch7.addConstraint(Sketcher.Constraint("DistanceX", -1, 1, 1, 3, Q("5 mm")))
sketch7.addConstraint(Sketcher.Constraint("Radius", 0, Q("58.25 mm")))
sketch7.addConstraint(Sketcher.Constraint("DistanceY", 0, 3, -1, 1, Q("30 mm")))
sketch7.setExpression("Constraints[8]", "Params.sketch7_diameter")
sketch7.setExpression("Constraints[10]", "Params.sketch7_radius")
pocket1 = body.newObject("PartDesign::Pocket", "Pocket")
pocket1.Profile = sketch7
pocket1.Type = "ThroughAll"

# Sketch on XY plane
sketch8 = body.newObject("Sketcher::SketchObject", "Sketch007")
sketch8.AttachmentSupport = (doc.getObject("XY_Plane"), [""])
sketch8.MapMode = "FlatFace"
sketch8.AttachmentOffset = App.Placement(Vector(0, 0, 32), App.Rotation())
sketch8.addGeometry(Part.ArcOfCircle(Part.Circle(Vector(-7.5, 0, 0), Vector(0, 0, 1), 2.5), math.radians(-90), math.radians(90)), False)
sketch8.addGeometry(Part.LineSegment(Vector(-7.5, 2.5, 0), Vector(-27.5, 2.5, 0)), False)
sketch8.addGeometry(Part.ArcOfCircle(Part.Circle(Vector(-27.5, 0, 0), Vector(0, 0, 1), 2.5), math.radians(90), math.radians(270)), False)
sketch8.addGeometry(Part.LineSegment(Vector(-27.5, -2.5, 0), Vector(-7.5, -2.5, 0)), False)
sketch8.addGeometry(Part.ArcOfCircle(Part.Circle(Vector(7.5, 0, 0), Vector(0, 0, 1), 2.5), math.radians(90), math.radians(270)), False)
sketch8.addGeometry(Part.LineSegment(Vector(7.5, -2.5, 0), Vector(27.5, -2.5, 0)), False)
sketch8.addGeometry(Part.ArcOfCircle(Part.Circle(Vector(27.5, 0, 0), Vector(0, 0, 1), 2.5), math.radians(-90), math.radians(90)), False)
sketch8.addGeometry(Part.LineSegment(Vector(27.5, 2.5, 0), Vector(7.5, 2.5, 0)), False)
sketch8.addConstraint(Sketcher.Constraint("Tangent", 0, 2, 1, 1))
sketch8.addConstraint(Sketcher.Constraint("Tangent", 1, 2, 2, 1))
sketch8.addConstraint(Sketcher.Constraint("Tangent", 2, 2, 3, 1))
sketch8.addConstraint(Sketcher.Constraint("Tangent", 3, 2, 0, 1))
sketch8.addConstraint(Sketcher.Constraint("Tangent", 4, 2, 5, 1))
sketch8.addConstraint(Sketcher.Constraint("Tangent", 5, 2, 6, 1))
sketch8.addConstraint(Sketcher.Constraint("Tangent", 6, 2, 7, 1))
sketch8.addConstraint(Sketcher.Constraint("Tangent", 7, 2, 4, 1))
sketch8.addConstraint(Sketcher.Constraint("Horizontal", 1))
sketch8.addConstraint(Sketcher.Constraint("Horizontal", 3))
sketch8.addConstraint(Sketcher.Constraint("Horizontal", 5))
sketch8.addConstraint(Sketcher.Constraint("Horizontal", 7))
sketch8.addConstraint(Sketcher.Constraint("Equal", 2, 4))
sketch8.addConstraint(Sketcher.Constraint("Symmetric", 0, 3, 4, 3, -1, 1))
sketch8.addConstraint(Sketcher.Constraint("Symmetric", 2, 3, 6, 3, -2))
sketch8.addConstraint(Sketcher.Constraint("Radius", 0, Q("2.5 mm")))
sketch8.addConstraint(Sketcher.Constraint("DistanceX", 1, 2, 1, 1, Q("20 mm")))
sketch8.addConstraint(Sketcher.Constraint("DistanceX", 0, 3, 4, 3, Q("15 mm")))
sketch8.setExpression("Constraints[15]", "Params.sketch8_radius")
sketch8.setExpression("Constraints[16]", "Params.sketch8_width")
pocket2 = body.newObject("PartDesign::Pocket", "Pocket001")
pocket2.Profile = sketch8
pocket2.setExpression("Length", "Params.pocket2_length")
doc.recompute()

chamfer = body.newObject("PartDesign::Chamfer", "Chamfer")
chamfer.Base = (pocket2, edges_at(pocket2, [
    (12.5, 36, 3),
    (-12.5, 36, 3),
    (12.5, -36, 3),
    (-12.5, -36, 3),
]))
chamfer.setExpression("Size", "Params.chamfer_size")

doc.recompute()
